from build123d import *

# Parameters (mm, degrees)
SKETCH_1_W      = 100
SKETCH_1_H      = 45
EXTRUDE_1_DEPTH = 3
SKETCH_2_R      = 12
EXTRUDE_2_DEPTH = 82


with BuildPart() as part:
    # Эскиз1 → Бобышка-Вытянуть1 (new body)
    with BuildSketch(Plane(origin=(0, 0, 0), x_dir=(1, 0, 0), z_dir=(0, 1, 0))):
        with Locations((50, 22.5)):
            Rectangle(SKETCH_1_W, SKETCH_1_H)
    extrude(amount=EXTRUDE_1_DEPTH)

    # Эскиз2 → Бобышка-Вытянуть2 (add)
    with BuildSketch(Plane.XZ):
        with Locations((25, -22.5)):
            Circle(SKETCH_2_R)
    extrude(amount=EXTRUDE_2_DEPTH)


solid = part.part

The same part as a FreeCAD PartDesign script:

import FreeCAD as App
import Part
import Sketcher
from FreeCAD import Vector


def add_polygon(sketch, points):
    """Adds a closed chain of lines whose ends are joined by coincident constraints."""
    first, n = sketch.GeometryCount, len(points)
    for a, b in zip(points, points[1:] + points[:1]):
        sketch.addGeometry(Part.LineSegment(App.Vector(*a, 0), App.Vector(*b, 0)), False)
    for i in range(n):
        sketch.addConstraint(Sketcher.Constraint("Coincident", first + i, 2, first + (i + 1) % n, 1))

doc = App.newDocument("Part")
body = doc.addObject("PartDesign::Body", "Body")

# Sketch on XZ plane
sketch1 = body.newObject("Sketcher::SketchObject", "Sketch")
sketch1.AttachmentSupport = (doc.getObject("XZ_Plane"), [""])
sketch1.MapMode = "FlatFace"
add_polygon(sketch1, [(0, -45), (0, 0), (100, 0), (100, -45)])  # lines 0-3
sketch1.addConstraint(Sketcher.Constraint("Vertical", 0))
sketch1.addConstraint(Sketcher.Constraint("Horizontal", 1))
sketch1.addConstraint(Sketcher.Constraint("Vertical", 2))
sketch1.addConstraint(Sketcher.Constraint("Horizontal", 3))
sketch1.addConstraint(Sketcher.Constraint("Coincident", 0, 2, -1, 1))
sketch1.addConstraint(Sketcher.Constraint("DistanceX", 1, 1, 1, 2, 100.0))
sketch1.addConstraint(Sketcher.Constraint("DistanceY", 0, 1, 0, 2, 45.0))
pad1 = body.newObject("PartDesign::Pad", "Pad")
pad1.Profile = sketch1
pad1.Length = 3
pad1.Reversed = True

# Sketch on XZ plane
sketch2 = body.newObject("Sketcher::SketchObject", "Sketch001")
sketch2.AttachmentSupport = (doc.getObject("XZ_Plane"), [""])
sketch2.MapMode = "FlatFace"
sketch2.addGeometry(Part.Circle(Vector(25, -22, 0), Vector(0, 0, 1), 12), False)
sketch2.addConstraint(Sketcher.Constraint("Diameter", 0, 24.0))
sketch2.addConstraint(Sketcher.Constraint("DistanceX", -1, 1, 0, 3, 25.0))
sketch2.addConstraint(Sketcher.Constraint("DistanceY", 0, 3, -1, 1, 22.5))
pad2 = body.newObject("PartDesign::Pad", "Pad001")
pad2.Profile = sketch2
pad2.Length = 82

doc.recompute()
